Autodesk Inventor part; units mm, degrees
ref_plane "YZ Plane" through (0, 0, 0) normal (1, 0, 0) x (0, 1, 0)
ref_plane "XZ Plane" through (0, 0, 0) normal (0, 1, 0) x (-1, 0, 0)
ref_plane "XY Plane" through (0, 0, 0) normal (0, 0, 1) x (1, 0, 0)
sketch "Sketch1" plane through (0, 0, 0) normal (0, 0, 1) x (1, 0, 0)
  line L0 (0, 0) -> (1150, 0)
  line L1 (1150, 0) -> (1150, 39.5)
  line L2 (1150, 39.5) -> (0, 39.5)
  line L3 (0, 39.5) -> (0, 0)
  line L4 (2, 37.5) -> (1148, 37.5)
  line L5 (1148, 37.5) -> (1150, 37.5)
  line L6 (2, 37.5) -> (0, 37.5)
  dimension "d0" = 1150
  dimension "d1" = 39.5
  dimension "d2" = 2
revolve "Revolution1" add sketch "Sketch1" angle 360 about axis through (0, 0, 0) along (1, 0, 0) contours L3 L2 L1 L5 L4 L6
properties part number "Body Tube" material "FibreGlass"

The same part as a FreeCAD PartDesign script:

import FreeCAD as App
import Part
import Sketcher

doc = App.newDocument("Part")
body = doc.addObject("PartDesign::Body", "Body")

# Sketch on XY plane
sketch1 = body.newObject("Sketcher::SketchObject", "Sketch")
sketch1.AttachmentSupport = (doc.getObject("XY_Plane"), [""])
sketch1.MapMode = "FlatFace"
sketch1.addGeometry(Part.LineSegment(App.Vector(0, 39.5, 0), App.Vector(0, 37.5, 0)), False)
sketch1.addGeometry(Part.LineSegment(App.Vector(0, 37.5, 0), App.Vector(1150, 37.5, 0)), False)
sketch1.addGeometry(Part.LineSegment(App.Vector(1150, 37.5, 0), App.Vector(1150, 39.5, 0)), False)
sketch1.addGeometry(Part.LineSegment(App.Vector(1150, 39.5, 0), App.Vector(0, 39.5, 0)), False)
sketch1.addConstraint(Sketcher.Constraint("Coincident", 0, 2, 1, 1))
sketch1.addConstraint(Sketcher.Constraint("Coincident", 1, 2, 2, 1))
sketch1.addConstraint(Sketcher.Constraint("Coincident", 2, 2, 3, 1))
sketch1.addConstraint(Sketcher.Constraint("Coincident", 3, 2, 0, 1))
sketch1.addConstraint(Sketcher.Constraint("Vertical", 0))
sketch1.addConstraint(Sketcher.Constraint("Horizontal", 1))
sketch1.addConstraint(Sketcher.Constraint("Vertical", 2))
sketch1.addConstraint(Sketcher.Constraint("Horizontal", 3))
sketch1.addConstraint(Sketcher.Constraint("PointOnObject", 0, 2, -2))
sketch1.addConstraint(Sketcher.Constraint("DistanceX", 1, 1, 1, 2, 1150.0))
sketch1.addConstraint(Sketcher.Constraint("DistanceY", 0, 2, 0, 1, 2.0))
sketch1.addConstraint(Sketcher.Constraint("DistanceY", -1, 1, 2, 2, 39.5))
revolution = body.newObject("PartDesign::Revolution", "Revolution")
revolution.Profile = sketch1
revolution.ReferenceAxis = (sketch1, ["H_Axis"])
revolution.Angle = 360

doc.recompute()
